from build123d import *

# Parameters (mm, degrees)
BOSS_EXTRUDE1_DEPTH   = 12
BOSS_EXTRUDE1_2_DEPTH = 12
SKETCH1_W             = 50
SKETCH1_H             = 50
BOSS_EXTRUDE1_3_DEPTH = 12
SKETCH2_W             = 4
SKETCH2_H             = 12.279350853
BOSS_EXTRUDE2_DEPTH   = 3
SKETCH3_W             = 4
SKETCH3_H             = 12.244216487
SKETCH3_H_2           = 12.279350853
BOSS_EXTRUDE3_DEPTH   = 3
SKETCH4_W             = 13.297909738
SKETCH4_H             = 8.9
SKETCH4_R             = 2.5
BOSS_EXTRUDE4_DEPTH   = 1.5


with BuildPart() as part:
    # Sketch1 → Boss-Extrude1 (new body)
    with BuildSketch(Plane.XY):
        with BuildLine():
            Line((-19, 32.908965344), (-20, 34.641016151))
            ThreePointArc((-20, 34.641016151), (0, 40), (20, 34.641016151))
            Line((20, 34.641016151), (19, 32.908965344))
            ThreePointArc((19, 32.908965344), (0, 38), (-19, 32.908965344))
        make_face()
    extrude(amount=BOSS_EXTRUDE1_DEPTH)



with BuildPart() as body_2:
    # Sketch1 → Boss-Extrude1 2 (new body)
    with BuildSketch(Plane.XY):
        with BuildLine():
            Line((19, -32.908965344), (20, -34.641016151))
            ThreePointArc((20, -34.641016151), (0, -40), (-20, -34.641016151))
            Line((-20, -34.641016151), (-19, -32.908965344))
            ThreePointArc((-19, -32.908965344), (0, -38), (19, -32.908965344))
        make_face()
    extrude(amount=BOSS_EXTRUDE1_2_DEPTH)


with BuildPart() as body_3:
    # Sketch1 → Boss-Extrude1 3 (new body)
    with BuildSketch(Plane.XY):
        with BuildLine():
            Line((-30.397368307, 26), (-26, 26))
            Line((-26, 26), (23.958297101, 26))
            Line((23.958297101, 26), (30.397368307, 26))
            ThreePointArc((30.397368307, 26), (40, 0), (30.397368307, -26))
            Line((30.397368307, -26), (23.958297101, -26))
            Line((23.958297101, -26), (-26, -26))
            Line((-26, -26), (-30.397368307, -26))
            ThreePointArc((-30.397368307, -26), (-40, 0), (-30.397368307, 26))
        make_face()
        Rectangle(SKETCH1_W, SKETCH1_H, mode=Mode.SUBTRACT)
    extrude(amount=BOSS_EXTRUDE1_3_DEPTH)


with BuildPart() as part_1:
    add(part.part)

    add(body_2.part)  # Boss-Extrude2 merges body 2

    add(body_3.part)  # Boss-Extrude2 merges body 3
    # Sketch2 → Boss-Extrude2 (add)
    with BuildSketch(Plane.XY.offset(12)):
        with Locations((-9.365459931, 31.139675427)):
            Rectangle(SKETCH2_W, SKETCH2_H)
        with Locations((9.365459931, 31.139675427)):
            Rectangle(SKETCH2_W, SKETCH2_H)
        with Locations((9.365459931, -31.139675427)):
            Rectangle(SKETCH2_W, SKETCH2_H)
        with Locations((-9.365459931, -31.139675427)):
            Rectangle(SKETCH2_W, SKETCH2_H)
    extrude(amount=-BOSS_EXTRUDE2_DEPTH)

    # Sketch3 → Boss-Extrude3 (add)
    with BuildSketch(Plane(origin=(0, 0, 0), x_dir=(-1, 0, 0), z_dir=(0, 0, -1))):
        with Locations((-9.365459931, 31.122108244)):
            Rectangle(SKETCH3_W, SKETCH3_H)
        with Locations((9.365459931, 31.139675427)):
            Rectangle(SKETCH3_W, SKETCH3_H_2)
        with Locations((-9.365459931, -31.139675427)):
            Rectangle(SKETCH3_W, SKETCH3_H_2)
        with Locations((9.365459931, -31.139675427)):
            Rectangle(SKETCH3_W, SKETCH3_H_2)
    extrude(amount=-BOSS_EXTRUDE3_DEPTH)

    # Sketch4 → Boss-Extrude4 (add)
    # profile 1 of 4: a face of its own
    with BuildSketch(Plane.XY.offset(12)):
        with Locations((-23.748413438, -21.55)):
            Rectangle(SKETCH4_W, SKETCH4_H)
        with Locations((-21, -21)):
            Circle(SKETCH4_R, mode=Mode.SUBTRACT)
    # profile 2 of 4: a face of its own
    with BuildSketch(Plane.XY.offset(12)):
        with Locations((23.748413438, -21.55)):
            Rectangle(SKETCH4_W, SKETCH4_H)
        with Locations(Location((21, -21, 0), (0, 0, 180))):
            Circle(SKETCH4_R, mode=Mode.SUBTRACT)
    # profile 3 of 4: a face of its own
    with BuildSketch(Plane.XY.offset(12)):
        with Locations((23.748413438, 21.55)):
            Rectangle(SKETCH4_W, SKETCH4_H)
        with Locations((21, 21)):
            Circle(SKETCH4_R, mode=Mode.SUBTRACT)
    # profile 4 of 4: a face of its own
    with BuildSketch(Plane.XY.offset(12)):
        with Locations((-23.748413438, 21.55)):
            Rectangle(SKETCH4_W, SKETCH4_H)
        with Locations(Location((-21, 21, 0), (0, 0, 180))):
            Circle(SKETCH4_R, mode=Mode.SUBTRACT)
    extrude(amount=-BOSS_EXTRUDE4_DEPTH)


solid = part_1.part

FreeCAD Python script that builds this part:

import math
import FreeCAD as App
import Part
import Sketcher
from FreeCAD import Vector
Q = App.Units.Quantity


def add_polygon(sketch, points):
    """Adds a closed chain of lines whose ends are joined by coincident constraints."""
    first, n = sketch.GeometryCount, len(points)
    for a, b in zip(points, points[1:] + points[:1]):
        sketch.addGeometry(Part.LineSegment(App.Vector(*a, 0), App.Vector(*b, 0)), False)
    for i in range(n):
        sketch.addConstraint(Sketcher.Constraint("Coincident", first + i, 2, first + (i + 1) % n, 1))

doc = App.newDocument("Part")
body = doc.addObject("PartDesign::Body", "Body")

# Sketch on XY plane
sketch1 = body.newObject("Sketcher::SketchObject", "Sketch")
sketch1.AttachmentSupport = (doc.getObject("XY_Plane"), [""])
sketch1.MapMode = "FlatFace"
sketch1.addGeometry(Part.LineSegment(Vector(-20, 34.6, 0), Vector(-19, 32.9, 0)), False)
sketch1.addGeometry(Part.ArcOfCircle(Part.Circle(Vector(0, 0, 0), Vector(0, 0, 1), 38), math.radians(60), math.radians(120)), False)
sketch1.addGeometry(Part.LineSegment(Vector(19, 32.9, 0), Vector(20, 34.6, 0)), False)
sketch1.addGeometry(Part.ArcOfCircle(Part.Circle(Vector(0, 0, 0), Vector(0, 0, 1), 40), math.radians(60), math.radians(120)), False)
sketch1.addConstraint(Sketcher.Constraint("Coincident", 0, 2, 1, 2))
sketch1.addConstraint(Sketcher.Constraint("Coincident", 1, 1, 2, 1))
sketch1.addConstraint(Sketcher.Constraint("Coincident", 2, 2, 3, 1))
sketch1.addConstraint(Sketcher.Constraint("Coincident", 3, 2, 0, 1))
sketch1.addConstraint(Sketcher.Constraint("Coincident", 1, 3, -1, 1))
sketch1.addConstraint(Sketcher.Constraint("Coincident", 3, 3, -1, 1))
sketch1.addConstraint(Sketcher.Constraint("Horizontal", 0, 2, 1, 1))
sketch1.addConstraint(Sketcher.Constraint("Horizontal", 2, 2, 3, 2))
sketch1.addConstraint(Sketcher.Constraint("Radius", 1, Q("38 mm")))
sketch1.addConstraint(Sketcher.Constraint("Radius", 3, Q("40 mm")))
sketch1.addConstraint(Sketcher.Constraint("Angle", 0, Q("-60 deg")))
sketch1.addConstraint(Sketcher.Constraint("DistanceX", 0, 2, -1, 1, Q("19 mm")))
pad1 = body.newObject("PartDesign::Pad", "Pad")
pad1.Profile = sketch1
pad1.Length = 12
body2 = doc.addObject("PartDesign::Body", "Body001")

# Sketch on XY plane
sketch2 = body2.newObject("Sketcher::SketchObject", "Sketch001")
sketch2.AttachmentSupport = (doc.getObject("XY_Plane001"), [""])
sketch2.MapMode = "FlatFace"
sketch2.addGeometry(Part.LineSegment(Vector(20, -34.6, 0), Vector(19, -32.9, 0)), False)
sketch2.addGeometry(Part.ArcOfCircle(Part.Circle(Vector(0, 0, 0), Vector(0, 0, 1), 38), math.radians(-120), math.radians(-60)), False)
sketch2.addGeometry(Part.LineSegment(Vector(-19, -32.9, 0), Vector(-20, -34.6, 0)), False)
sketch2.addGeometry(Part.ArcOfCircle(Part.Circle(Vector(0, 0, 0), Vector(0, 0, 1), 40), math.radians(-120), math.radians(-60)), False)
sketch2.addConstraint(Sketcher.Constraint("Coincident", 0, 2, 1, 2))
sketch2.addConstraint(Sketcher.Constraint("Coincident", 1, 1, 2, 1))
sketch2.addConstraint(Sketcher.Constraint("Coincident", 2, 2, 3, 1))
sketch2.addConstraint(Sketcher.Constraint("Coincident", 3, 2, 0, 1))
sketch2.addConstraint(Sketcher.Constraint("Coincident", 1, 3, -1, 1))
sketch2.addConstraint(Sketcher.Constraint("Coincident", 3, 3, -1, 1))
sketch2.addConstraint(Sketcher.Constraint("Horizontal", 0, 2, 1, 1))
sketch2.addConstraint(Sketcher.Constraint("Horizontal", 2, 2, 3, 2))
sketch2.addConstraint(Sketcher.Constraint("Radius", 1, Q("38 mm")))
sketch2.addConstraint(Sketcher.Constraint("Radius", 3, Q("40 mm")))
sketch2.addConstraint(Sketcher.Constraint("Angle", 0, Q("120 deg")))
sketch2.addConstraint(Sketcher.Constraint("DistanceX", -1, 1, 0, 2, Q("19 mm")))
pad2 = body2.newObject("PartDesign::Pad", "Pad001")
pad2.Profile = sketch2
pad2.Length = 12
body3 = doc.addObject("PartDesign::Body", "Body002")

# Sketch on XY plane
sketch3 = body3.newObject("Sketcher::SketchObject", "Sketch002")
sketch3.AttachmentSupport = (doc.getObject("XY_Plane002"), [""])
sketch3.MapMode = "FlatFace"
sketch3.addGeometry(Part.LineSegment(Vector(30, 26, 0), Vector(-30, 26, 0)), False)  # 0
sketch3.addGeometry(Part.ArcOfCircle(Part.Circle(Vector(0, 0, 0), Vector(0, 0, 1), 40), math.radians(139), math.radians(221)), False)  # 1
sketch3.addGeometry(Part.LineSegment(Vector(-30, -26, 0), Vector(30, -26, 0)), False)  # 2
sketch3.addGeometry(Part.ArcOfCircle(Part.Circle(Vector(0, 0, 0), Vector(0, 0, 1), 40), math.radians(-41), math.radians(41)), False)  # 3
add_polygon(sketch3, [(-25, -25), (-25, 25), (25, 25), (25, -25)])  # lines 4-7
sketch3.addConstraint(Sketcher.Constraint("Coincident", 0, 2, 1, 1))
sketch3.addConstraint(Sketcher.Constraint("Coincident", 1, 2, 2, 1))
sketch3.addConstraint(Sketcher.Constraint("Coincident", 2, 2, 3, 1))
sketch3.addConstraint(Sketcher.Constraint("Coincident", 3, 2, 0, 1))
sketch3.addConstraint(Sketcher.Constraint("Horizontal", 0))
sketch3.addConstraint(Sketcher.Constraint("Horizontal", 2))
sketch3.addConstraint(Sketcher.Constraint("Vertical", 4))
sketch3.addConstraint(Sketcher.Constraint("Horizontal", 5))
sketch3.addConstraint(Sketcher.Constraint("Vertical", 6))
sketch3.addConstraint(Sketcher.Constraint("Horizontal", 7))
sketch3.addConstraint(Sketcher.Constraint("Coincident", 1, 3, -1, 1))
sketch3.addConstraint(Sketcher.Constraint("Coincident", 3, 3, -1, 1))
sketch3.addConstraint(Sketcher.Constraint("Equal", 1, 3))
sketch3.addConstraint(Sketcher.Constraint("Symmetric", 4, 2, 6, 2, -1, 1))
sketch3.addConstraint(Sketcher.Constraint("Vertical", 0, 2, 1, 2))
sketch3.addConstraint(Sketcher.Constraint("Equal", 7, 4))
sketch3.addConstraint(Sketcher.Constraint("Radius", 1, Q("40 mm")))
sketch3.addConstraint(Sketcher.Constraint("DistanceX", 5, 1, 5, 2, Q("50 mm")))
sketch3.addConstraint(Sketcher.Constraint("DistanceY", -1, 1, 0, 2, Q("26 mm")))
pad3 = body3.newObject("PartDesign::Pad", "Pad002")
pad3.Profile = sketch3
pad3.Length = 12
body.AllowCompound = True
doc.recompute()

boolean = body.newObject("PartDesign::Boolean", "Boolean")
boolean.Type = "Fuse"
boolean.addObjects([body2])
doc.recompute()

boolean2 = body.newObject("PartDesign::Boolean", "Boolean001")
boolean2.Type = "Fuse"
boolean2.addObjects([body3])

# Sketch on XY plane
sketch4 = body.newObject("Sketcher::SketchObject", "Sketch003")
sketch4.AttachmentSupport = (doc.getObject("XY_Plane"), [""])
sketch4.MapMode = "FlatFace"
sketch4.AttachmentOffset = App.Placement(Vector(0, 0, 12), App.Rotation())
add_polygon(sketch4, [(-11.4, 37.3), (-11.4, 25), (-7.4, 25), (-7.4, 37.3)])  # lines 0-3
add_polygon(sketch4, [(7.4, 37.3), (7.4, 25), (11.4, 25), (11.4, 37.3)])  # lines 4-7
add_polygon(sketch4, [(7.4, -25), (7.4, -37.3), (11.4, -37.3), (11.4, -25)])  # lines 8-11
add_polygon(sketch4, [(-11.4, -25), (-11.4, -37.3), (-7.4, -37.3), (-7.4, -25)])  # lines 12-15
sketch4.addConstraint(Sketcher.Constraint("Vertical", 0))
sketch4.addConstraint(Sketcher.Constraint("Horizontal", 1))
sketch4.addConstraint(Sketcher.Constraint("Vertical", 2))
sketch4.addConstraint(Sketcher.Constraint("Horizontal", 3))
sketch4.addConstraint(Sketcher.Constraint("Vertical", 4))
sketch4.addConstraint(Sketcher.Constraint("Horizontal", 5))
sketch4.addConstraint(Sketcher.Constraint("Vertical", 6))
sketch4.addConstraint(Sketcher.Constraint("Horizontal", 7))
sketch4.addConstraint(Sketcher.Constraint("Vertical", 8))
sketch4.addConstraint(Sketcher.Constraint("Horizontal", 9))
sketch4.addConstraint(Sketcher.Constraint("Vertical", 10))
sketch4.addConstraint(Sketcher.Constraint("Horizontal", 11))
sketch4.addConstraint(Sketcher.Constraint("Vertical", 12))
sketch4.addConstraint(Sketcher.Constraint("Horizontal", 13))
sketch4.addConstraint(Sketcher.Constraint("Vertical", 14))
sketch4.addConstraint(Sketcher.Constraint("Horizontal", 15))
sketch4.addConstraint(Sketcher.Constraint("Symmetric", 2, 2, 8, 2, -1, 1))
sketch4.addConstraint(Sketcher.Constraint("Symmetric", 0, 2, 10, 2, -1, 1))
sketch4.addConstraint(Sketcher.Constraint("Symmetric", 6, 2, 12, 2, -1, 1))
sketch4.addConstraint(Sketcher.Constraint("Symmetric", 4, 2, 14, 2, -1, 1))
sketch4.addConstraint(Sketcher.Constraint("Symmetric", 1, 2, 4, 2, -2))
sketch4.addConstraint(Sketcher.Constraint("Symmetric", 3, 2, 6, 2, -2))
sketch4.addConstraint(Sketcher.Constraint("DistanceX", 1, 1, 1, 2, Q("4 mm")))
sketch4.addConstraint(Sketcher.Constraint("DistanceY", -1, 1, 0, 2, Q("25 mm")))
sketch4.addConstraint(Sketcher.Constraint("DistanceY", 0, 2, 0, 1, Q("12.279351 mm")))
sketch4.addConstraint(Sketcher.Constraint("DistanceX", 0, 2, -1, 1, Q("11.36546 mm")))
pad4 = body.newObject("PartDesign::Pad", "Pad003")
pad4.Profile = sketch4
pad4.Length = 3
pad4.Reversed = True

# Sketch on XY plane
sketch5 = body.newObject("Sketcher::SketchObject", "Sketch004")
sketch5.AttachmentSupport = (doc.getObject("XY_Plane"), [""])
sketch5.MapMode = "FlatFace"
add_polygon(sketch5, [(11.4, 37.2), (11.4, 25), (7.4, 25), (7.4, 37.2)])  # lines 0-3
add_polygon(sketch5, [(-7.4, 37.3), (-7.4, 25), (-11.4, 25), (-11.4, 37.3)])  # lines 4-7
add_polygon(sketch5, [(11.4, -25), (11.4, -37.3), (7.4, -37.3), (7.4, -25)])  # lines 8-11
add_polygon(sketch5, [(-7.4, -25), (-7.4, -37.3), (-11.4, -37.3), (-11.4, -25)])  # lines 12-15
sketch5.addConstraint(Sketcher.Constraint("Vertical", 0))
sketch5.addConstraint(Sketcher.Constraint("Horizontal", 1))
sketch5.addConstraint(Sketcher.Constraint("Vertical", 2))
sketch5.addConstraint(Sketcher.Constraint("Horizontal", 3))
sketch5.addConstraint(Sketcher.Constraint("Vertical", 4))
sketch5.addConstraint(Sketcher.Constraint("Horizontal", 5))
sketch5.addConstraint(Sketcher.Constraint("Vertical", 6))
sketch5.addConstraint(Sketcher.Constraint("Horizontal", 7))
sketch5.addConstraint(Sketcher.Constraint("Vertical", 8))
sketch5.addConstraint(Sketcher.Constraint("Horizontal", 9))
sketch5.addConstraint(Sketcher.Constraint("Vertical", 10))
sketch5.addConstraint(Sketcher.Constraint("Horizontal", 11))
sketch5.addConstraint(Sketcher.Constraint("Vertical", 12))
sketch5.addConstraint(Sketcher.Constraint("Horizontal", 13))
sketch5.addConstraint(Sketcher.Constraint("Vertical", 14))
sketch5.addConstraint(Sketcher.Constraint("Horizontal", 15))
sketch5.addConstraint(Sketcher.Constraint("Symmetric", 6, 2, 8, 2, -1, 1))
sketch5.addConstraint(Sketcher.Constraint("Symmetric", 4, 2, 10, 2, -1, 1))
sketch5.addConstraint(Sketcher.Constraint("Symmetric", 0, 2, 14, 2, -1, 1))
sketch5.addConstraint(Sketcher.Constraint("Symmetric", 1, 2, 4, 2, -2))
sketch5.addConstraint(Sketcher.Constraint("Symmetric", 9, 2, 12, 2, -2))
sketch5.addConstraint(Sketcher.Constraint("Vertical", 3, 2, 8, 2))
sketch5.addConstraint(Sketcher.Constraint("DistanceX", 1, 2, 1, 1, Q("4 mm")))
sketch5.addConstraint(Sketcher.Constraint("DistanceY", -1, 1, 0, 2, Q("25 mm")))
sketch5.addConstraint(Sketcher.Constraint("DistanceY", 4, 2, 4, 1, Q("12.279351 mm")))
sketch5.addConstraint(Sketcher.Constraint("DistanceY", 0, 2, 0, 1, Q("12.244216 mm")))
sketch5.addConstraint(Sketcher.Constraint("DistanceX", -1, 1, 0, 2, Q("11.36546 mm")))
pad5 = body.newObject("PartDesign::Pad", "Pad004")
pad5.Profile = sketch5
pad5.Length = 3

# Sketch on XY plane
sketch6 = body.newObject("Sketcher::SketchObject", "Sketch005")
sketch6.AttachmentSupport = (doc.getObject("XY_Plane"), [""])
sketch6.MapMode = "FlatFace"
sketch6.AttachmentOffset = App.Placement(Vector(0, 0, 12), App.Rotation())
add_polygon(sketch6, [(-30.4, -17.1), (-30.4, -26), (-17.1, -26), (-17.1, -17.1)])  # lines 0-3
sketch6.addGeometry(Part.Circle(Vector(-21, -21, 0), Vector(0, 0, 1), 2.5), False)  # 4
add_polygon(sketch6, [(17.1, -17.1), (17.1, -26), (30.4, -26), (30.4, -17.1)])  # lines 5-8
sketch6.addGeometry(Part.Circle(Vector(21, -21, 0), Vector(0, 0, 1), 2.5), False)  # 9
add_polygon(sketch6, [(17.1, 26), (17.1, 17.1), (30.4, 17.1), (30.4, 26)])  # lines 10-13
sketch6.addGeometry(Part.Circle(Vector(21, 21, 0), Vector(0, 0, 1), 2.5), False)  # 14
add_polygon(sketch6, [(-30.4, 26), (-30.4, 17.1), (-17.1, 17.1), (-17.1, 26)])  # lines 15-18
sketch6.addGeometry(Part.Circle(Vector(-21, 21, 0), Vector(0, 0, 1), 2.5), False)  # 19
sketch6.addConstraint(Sketcher.Constraint("Vertical", 0))
sketch6.addConstraint(Sketcher.Constraint("Horizontal", 1))
sketch6.addConstraint(Sketcher.Constraint("Vertical", 2))
sketch6.addConstraint(Sketcher.Constraint("Horizontal", 3))
sketch6.addConstraint(Sketcher.Constraint("Vertical", 5))
sketch6.addConstraint(Sketcher.Constraint("Horizontal", 6))
sketch6.addConstraint(Sketcher.Constraint("Vertical", 7))
sketch6.addConstraint(Sketcher.Constraint("Horizontal", 8))
sketch6.addConstraint(Sketcher.Constraint("Vertical", 10))
sketch6.addConstraint(Sketcher.Constraint("Horizontal", 11))
sketch6.addConstraint(Sketcher.Constraint("Vertical", 12))
sketch6.addConstraint(Sketcher.Constraint("Horizontal", 13))
sketch6.addConstraint(Sketcher.Constraint("Vertical", 15))
sketch6.addConstraint(Sketcher.Constraint("Horizontal", 16))
sketch6.addConstraint(Sketcher.Constraint("Vertical", 17))
sketch6.addConstraint(Sketcher.Constraint("Horizontal", 18))
sketch6.addConstraint(Sketcher.Constraint("Equal", 4, 9))
sketch6.addConstraint(Sketcher.Constraint("Equal", 9, 14))
sketch6.addConstraint(Sketcher.Constraint("Equal", 14, 19))
sketch6.addConstraint(Sketcher.Constraint("Symmetric", 4, 3, 14, 3, -1, 1))
sketch6.addConstraint(Sketcher.Constraint("Symmetric", 9, 3, 19, 3, -1, 1))
sketch6.addConstraint(Sketcher.Constraint("Symmetric", 2, 2, 10, 2, -1, 1))
sketch6.addConstraint(Sketcher.Constraint("Symmetric", 0, 2, 12, 2, -1, 1))
sketch6.addConstraint(Sketcher.Constraint("Symmetric", 7, 2, 15, 2, -1, 1))
sketch6.addConstraint(Sketcher.Constraint("Symmetric", 5, 2, 17, 2, -1, 1))
sketch6.addConstraint(Sketcher.Constraint("Symmetric", 4, 3, 9, 3, -2))
sketch6.addConstraint(Sketcher.Constraint("Symmetric", 1, 2, 5, 2, -2))
sketch6.addConstraint(Sketcher.Constraint("Symmetric", 3, 2, 7, 2, -2))
sketch6.addConstraint(Sketcher.Constraint("Diameter", 4, Q("5 mm")))
sketch6.addConstraint(Sketcher.Constraint("DistanceY", 0, 2, 0, 1, Q("8.9 mm")))
sketch6.addConstraint(Sketcher.Constraint("DistanceX", 4, 3, -1, 1, Q("21 mm")))
sketch6.addConstraint(Sketcher.Constraint("DistanceY", 4, 3, -1, 1, Q("21 mm")))
sketch6.addConstraint(Sketcher.Constraint("DistanceY", 0, 2, -1, 1, Q("26 mm")))
sketch6.addConstraint(Sketcher.Constraint("DistanceX", 1, 1, 1, 2, Q("13.29791 mm")))
sketch6.addConstraint(Sketcher.Constraint("DistanceX", 0, 2, -1, 1, Q("30.397368 mm")))
pad6 = body.newObject("PartDesign::Pad", "Pad005")
pad6.Profile = sketch6
pad6.Length = 1.5
pad6.Reversed = True

doc.recompute()
